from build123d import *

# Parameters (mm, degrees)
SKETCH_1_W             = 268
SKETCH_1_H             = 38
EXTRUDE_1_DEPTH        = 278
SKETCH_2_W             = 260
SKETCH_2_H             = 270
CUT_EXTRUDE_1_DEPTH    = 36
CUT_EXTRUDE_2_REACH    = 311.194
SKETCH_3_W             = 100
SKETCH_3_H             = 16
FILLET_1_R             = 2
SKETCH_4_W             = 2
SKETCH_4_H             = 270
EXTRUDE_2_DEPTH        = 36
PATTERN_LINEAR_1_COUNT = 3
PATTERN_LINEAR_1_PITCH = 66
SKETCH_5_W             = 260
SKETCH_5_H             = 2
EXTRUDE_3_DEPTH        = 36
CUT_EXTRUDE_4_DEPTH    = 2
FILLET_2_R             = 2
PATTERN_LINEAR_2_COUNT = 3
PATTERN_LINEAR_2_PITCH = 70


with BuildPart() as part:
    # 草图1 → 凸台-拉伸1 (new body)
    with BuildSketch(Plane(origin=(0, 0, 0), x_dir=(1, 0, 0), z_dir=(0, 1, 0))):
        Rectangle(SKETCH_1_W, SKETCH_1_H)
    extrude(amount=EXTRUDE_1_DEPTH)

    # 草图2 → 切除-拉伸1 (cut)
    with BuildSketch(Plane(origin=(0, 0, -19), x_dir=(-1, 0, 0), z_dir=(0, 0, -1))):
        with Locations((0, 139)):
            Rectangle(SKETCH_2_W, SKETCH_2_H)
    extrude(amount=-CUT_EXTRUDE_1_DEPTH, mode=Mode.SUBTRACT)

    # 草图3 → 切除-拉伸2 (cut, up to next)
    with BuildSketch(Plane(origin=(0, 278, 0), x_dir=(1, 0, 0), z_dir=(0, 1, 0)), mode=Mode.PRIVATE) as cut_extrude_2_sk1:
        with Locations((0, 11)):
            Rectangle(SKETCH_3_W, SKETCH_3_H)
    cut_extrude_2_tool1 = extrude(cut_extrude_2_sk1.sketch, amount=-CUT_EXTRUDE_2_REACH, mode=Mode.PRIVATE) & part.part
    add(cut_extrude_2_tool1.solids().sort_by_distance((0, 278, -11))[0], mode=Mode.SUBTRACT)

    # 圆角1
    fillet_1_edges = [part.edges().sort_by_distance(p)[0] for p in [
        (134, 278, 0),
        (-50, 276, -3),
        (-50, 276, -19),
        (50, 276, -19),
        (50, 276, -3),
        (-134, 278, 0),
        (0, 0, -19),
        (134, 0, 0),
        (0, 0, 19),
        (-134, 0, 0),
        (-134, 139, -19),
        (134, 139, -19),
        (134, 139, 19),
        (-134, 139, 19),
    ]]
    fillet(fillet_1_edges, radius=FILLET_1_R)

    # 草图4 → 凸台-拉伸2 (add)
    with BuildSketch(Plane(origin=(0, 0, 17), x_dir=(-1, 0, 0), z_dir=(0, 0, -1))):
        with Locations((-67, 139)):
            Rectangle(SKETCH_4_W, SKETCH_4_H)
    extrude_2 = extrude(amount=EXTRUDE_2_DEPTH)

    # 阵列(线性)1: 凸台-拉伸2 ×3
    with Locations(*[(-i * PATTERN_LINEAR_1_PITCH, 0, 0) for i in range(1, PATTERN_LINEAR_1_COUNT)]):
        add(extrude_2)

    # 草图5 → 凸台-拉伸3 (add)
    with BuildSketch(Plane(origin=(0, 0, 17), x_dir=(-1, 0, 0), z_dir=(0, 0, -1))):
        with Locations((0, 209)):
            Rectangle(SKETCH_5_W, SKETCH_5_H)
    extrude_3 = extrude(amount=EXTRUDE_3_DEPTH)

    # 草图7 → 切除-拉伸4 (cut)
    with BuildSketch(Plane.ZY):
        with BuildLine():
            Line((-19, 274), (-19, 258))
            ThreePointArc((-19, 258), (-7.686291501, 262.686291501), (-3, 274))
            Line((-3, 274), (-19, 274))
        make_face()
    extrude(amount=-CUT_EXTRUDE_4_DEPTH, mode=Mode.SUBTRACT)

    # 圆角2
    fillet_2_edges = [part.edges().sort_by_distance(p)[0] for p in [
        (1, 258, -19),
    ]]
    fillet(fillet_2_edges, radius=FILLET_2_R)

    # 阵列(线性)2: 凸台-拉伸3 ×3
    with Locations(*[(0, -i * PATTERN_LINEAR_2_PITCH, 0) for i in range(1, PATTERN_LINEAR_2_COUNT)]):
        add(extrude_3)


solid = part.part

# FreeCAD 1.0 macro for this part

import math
import FreeCAD as App
import Part
import Sketcher


def edges_at(feature, points):
    """Names of the edges that pass closest to the given points."""
    edges = feature.Shape.Edges
    near = lambda p: min(range(len(edges)), key=lambda i: edges[i].distToShape(Part.Vertex(*p))[0])
    return sorted({f"Edge{near(p) + 1}" for p in points})


def add_polygon(sketch, points):
    """Adds a closed chain of lines whose ends are joined by coincident constraints."""
    first, n = sketch.GeometryCount, len(points)
    for a, b in zip(points, points[1:] + points[:1]):
        sketch.addGeometry(Part.LineSegment(App.Vector(*a, 0), App.Vector(*b, 0)), False)
    for i in range(n):
        sketch.addConstraint(Sketcher.Constraint("Coincident", first + i, 2, first + (i + 1) % n, 1))

doc = App.newDocument("Part")
body = doc.addObject("PartDesign::Body", "Body")

sketch1 = body.newObject("Sketcher::SketchObject", "Sketch")
sketch1.AttachmentSupport = (doc.getObject("XZ_Plane"), [""])
sketch1.MapMode = "FlatFace"
add_polygon(sketch1, [(-134, -19), (-134, 19), (134, 19), (134, -19)])
sketch1.addConstraint([
    Sketcher.Constraint("Vertical", 0),
    Sketcher.Constraint("Horizontal", 1),
    Sketcher.Constraint("Vertical", 2),
    Sketcher.Constraint("Horizontal", 3),
    Sketcher.Constraint("Symmetric", 0, 2, 2, 2, -1, 1),
    Sketcher.Constraint("DistanceX", 1, 1, 1, 2, 268.0),
    Sketcher.Constraint("DistanceY", 0, 1, 0, 2, 38.0),
])
pad1 = body.newObject("PartDesign::Pad", "Pad")
pad1.Profile = sketch1
pad1.Length = 278
pad1.Reversed = True

sketch2 = body.newObject("Sketcher::SketchObject", "Sketch001")
sketch2.AttachmentSupport = (doc.getObject("XY_Plane"), [""])
sketch2.MapMode = "FlatFace"
sketch2.AttachmentOffset = App.Placement(App.Vector(0, 0, -19), App.Rotation())
add_polygon(sketch2, [(130, 274), (130, 4), (-130, 4), (-130, 274)])
sketch2.addConstraint([
    Sketcher.Constraint("Vertical", 0),
    Sketcher.Constraint("Horizontal", 1),
    Sketcher.Constraint("Vertical", 2),
    Sketcher.Constraint("Horizontal", 3),
    Sketcher.Constraint("DistanceX", 1, 2, 1, 1, 260.0),
    Sketcher.Constraint("DistanceY", 0, 2, 0, 1, 270.0),
    Sketcher.Constraint("DistanceX", -1, 1, 0, 2, 130.0),
    Sketcher.Constraint("DistanceY", -1, 1, 0, 2, 4.0),
])
pocket1 = body.newObject("PartDesign::Pocket", "Pocket")
pocket1.Profile = sketch2
pocket1.Length = 36
pocket1.Reversed = True

sketch3 = body.newObject("Sketcher::SketchObject", "Sketch002")
sketch3.AttachmentSupport = (doc.getObject("XZ_Plane"), [""])
sketch3.MapMode = "FlatFace"
sketch3.AttachmentOffset = App.Placement(App.Vector(0, 0, -278), App.Rotation())
add_polygon(sketch3, [(-50, -19), (-50, -3), (50, -3), (50, -19)])
sketch3.addConstraint([
    Sketcher.Constraint("Vertical", 0),
    Sketcher.Constraint("Horizontal", 1),
    Sketcher.Constraint("Vertical", 2),
    Sketcher.Constraint("Horizontal", 3),
    Sketcher.Constraint("DistanceX", 1, 1, 1, 2, 100.0),
    Sketcher.Constraint("DistanceY", 0, 1, 0, 2, 16.0),
    Sketcher.Constraint("DistanceX", 0, 2, -1, 1, 50.0),
    Sketcher.Constraint("DistanceY", 0, 2, -1, 1, 3.0),
])
pocket2 = body.newObject("PartDesign::Pocket", "Pocket001")
pocket2.Profile = sketch3
pocket2.Type = "UpToFirst"
pocket2.Reversed = True
doc.recompute()

fillet = body.newObject("PartDesign::Fillet", "Fillet")
fillet.Base = (pocket2, edges_at(pocket2, [
    (134, 278, 0),
    (-50, 276, -3),
    (-50, 276, -19),
    (50, 276, -19),
    (50, 276, -3),
    (-134, 278, 0),
    (0, 0, -19),
    (134, 0, 0),
    (0, 0, 19),
    (-134, 0, 0),
    (-134, 139, -19),
    (134, 139, -19),
    (134, 139, 19),
    (-134, 139, 19),
]))
fillet.Radius = 2

sketch4 = body.newObject("Sketcher::SketchObject", "Sketch003")
sketch4.AttachmentSupport = (doc.getObject("XY_Plane"), [""])
sketch4.MapMode = "FlatFace"
sketch4.AttachmentOffset = App.Placement(App.Vector(0, 0, 17), App.Rotation())
add_polygon(sketch4, [(68, 274), (68, 4), (66, 4), (66, 274)])
sketch4.addConstraint([
    Sketcher.Constraint("Vertical", 0),
    Sketcher.Constraint("Horizontal", 1),
    Sketcher.Constraint("Vertical", 2),
    Sketcher.Constraint("Horizontal", 3),
    Sketcher.Constraint("DistanceX", 1, 2, 1, 1, 2.0),
    Sketcher.Constraint("DistanceY", 0, 2, 0, 1, 270.0),
    Sketcher.Constraint("DistanceX", -1, 1, 0, 2, 68.0),
    Sketcher.Constraint("DistanceY", -1, 1, 0, 2, 4.0),
])
pad2 = body.newObject("PartDesign::Pad", "Pad001")
pad2.Profile = sketch4
pad2.Length = 36
pad2.Reversed = True
doc.recompute()

linearpattern = body.newObject("PartDesign::LinearPattern", "LinearPattern")
linearpattern.Originals = [pad2]
linearpattern.Direction = (doc.getObject("X_Axis"), [""])
linearpattern.Mode = "offset"
linearpattern.Offset = 66
linearpattern.Occurrences = 3
linearpattern.Reversed = True
body.Tip = linearpattern

sketch5 = body.newObject("Sketcher::SketchObject", "Sketch004")
sketch5.AttachmentSupport = (doc.getObject("XY_Plane"), [""])
sketch5.MapMode = "FlatFace"
sketch5.AttachmentOffset = App.Placement(App.Vector(0, 0, 17), App.Rotation())
add_polygon(sketch5, [(130, 210), (130, 208), (-130, 208), (-130, 210)])
sketch5.addConstraint([
    Sketcher.Constraint("Vertical", 0),
    Sketcher.Constraint("Horizontal", 1),
    Sketcher.Constraint("Vertical", 2),
    Sketcher.Constraint("Horizontal", 3),
    Sketcher.Constraint("DistanceX", 1, 2, 1, 1, 260.0),
    Sketcher.Constraint("DistanceY", 0, 2, 0, 1, 2.0),
    Sketcher.Constraint("DistanceX", -1, 1, 0, 2, 130.0),
    Sketcher.Constraint("DistanceY", -1, 1, 0, 2, 208.0),
])
pad3 = body.newObject("PartDesign::Pad", "Pad002")
pad3.Profile = sketch5
pad3.Length = 36
pad3.Reversed = True

sketch6 = body.newObject("Sketcher::SketchObject", "Sketch005")
sketch6.AttachmentSupport = (doc.getObject("YZ_Plane"), [""])
sketch6.MapMode = "FlatFace"
sketch6.addGeometry([
    Part.LineSegment(App.Vector(274, -19, 0), App.Vector(258, -19, 0)),
    Part.ArcOfCircle(Part.Circle(App.Vector(274, -19, 0), App.Vector(0, 0, 1), 16), math.radians(90), math.radians(180)),
    Part.LineSegment(App.Vector(274, -3, 0), App.Vector(274, -19, 0)),
], False)
sketch6.addConstraint([
    Sketcher.Constraint("Coincident", 0, 2, 1, 2),
    Sketcher.Constraint("Coincident", 1, 1, 2, 1),
    Sketcher.Constraint("Coincident", 2, 2, 0, 1),
    Sketcher.Constraint("Horizontal", 0),
    Sketcher.Constraint("Vertical", 2),
    Sketcher.Constraint("Coincident", 2, 2, 1, 3),
    Sketcher.Constraint("Radius", 1, 16.0),
    Sketcher.Constraint("DistanceX", -1, 1, 1, 3, 274.0),
    Sketcher.Constraint("DistanceY", 1, 3, -1, 1, 19.0),
])
pocket3 = body.newObject("PartDesign::Pocket", "Pocket002")
pocket3.Profile = sketch6
pocket3.Length = 2
pocket3.Reversed = True
doc.recompute()

fillet2 = body.newObject("PartDesign::Fillet", "Fillet001")
fillet2.Base = (pocket3, edges_at(pocket3, [(1, 258, -19)]))
fillet2.Radius = 2
doc.recompute()

linearpattern2 = body.newObject("PartDesign::LinearPattern", "LinearPattern001")
linearpattern2.Originals = [pad3]
linearpattern2.Direction = (doc.getObject("Y_Axis"), [""])
linearpattern2.Mode = "offset"
linearpattern2.Offset = 70
linearpattern2.Occurrences = 3
linearpattern2.Reversed = True
body.Tip = linearpattern2

doc.recompute()
